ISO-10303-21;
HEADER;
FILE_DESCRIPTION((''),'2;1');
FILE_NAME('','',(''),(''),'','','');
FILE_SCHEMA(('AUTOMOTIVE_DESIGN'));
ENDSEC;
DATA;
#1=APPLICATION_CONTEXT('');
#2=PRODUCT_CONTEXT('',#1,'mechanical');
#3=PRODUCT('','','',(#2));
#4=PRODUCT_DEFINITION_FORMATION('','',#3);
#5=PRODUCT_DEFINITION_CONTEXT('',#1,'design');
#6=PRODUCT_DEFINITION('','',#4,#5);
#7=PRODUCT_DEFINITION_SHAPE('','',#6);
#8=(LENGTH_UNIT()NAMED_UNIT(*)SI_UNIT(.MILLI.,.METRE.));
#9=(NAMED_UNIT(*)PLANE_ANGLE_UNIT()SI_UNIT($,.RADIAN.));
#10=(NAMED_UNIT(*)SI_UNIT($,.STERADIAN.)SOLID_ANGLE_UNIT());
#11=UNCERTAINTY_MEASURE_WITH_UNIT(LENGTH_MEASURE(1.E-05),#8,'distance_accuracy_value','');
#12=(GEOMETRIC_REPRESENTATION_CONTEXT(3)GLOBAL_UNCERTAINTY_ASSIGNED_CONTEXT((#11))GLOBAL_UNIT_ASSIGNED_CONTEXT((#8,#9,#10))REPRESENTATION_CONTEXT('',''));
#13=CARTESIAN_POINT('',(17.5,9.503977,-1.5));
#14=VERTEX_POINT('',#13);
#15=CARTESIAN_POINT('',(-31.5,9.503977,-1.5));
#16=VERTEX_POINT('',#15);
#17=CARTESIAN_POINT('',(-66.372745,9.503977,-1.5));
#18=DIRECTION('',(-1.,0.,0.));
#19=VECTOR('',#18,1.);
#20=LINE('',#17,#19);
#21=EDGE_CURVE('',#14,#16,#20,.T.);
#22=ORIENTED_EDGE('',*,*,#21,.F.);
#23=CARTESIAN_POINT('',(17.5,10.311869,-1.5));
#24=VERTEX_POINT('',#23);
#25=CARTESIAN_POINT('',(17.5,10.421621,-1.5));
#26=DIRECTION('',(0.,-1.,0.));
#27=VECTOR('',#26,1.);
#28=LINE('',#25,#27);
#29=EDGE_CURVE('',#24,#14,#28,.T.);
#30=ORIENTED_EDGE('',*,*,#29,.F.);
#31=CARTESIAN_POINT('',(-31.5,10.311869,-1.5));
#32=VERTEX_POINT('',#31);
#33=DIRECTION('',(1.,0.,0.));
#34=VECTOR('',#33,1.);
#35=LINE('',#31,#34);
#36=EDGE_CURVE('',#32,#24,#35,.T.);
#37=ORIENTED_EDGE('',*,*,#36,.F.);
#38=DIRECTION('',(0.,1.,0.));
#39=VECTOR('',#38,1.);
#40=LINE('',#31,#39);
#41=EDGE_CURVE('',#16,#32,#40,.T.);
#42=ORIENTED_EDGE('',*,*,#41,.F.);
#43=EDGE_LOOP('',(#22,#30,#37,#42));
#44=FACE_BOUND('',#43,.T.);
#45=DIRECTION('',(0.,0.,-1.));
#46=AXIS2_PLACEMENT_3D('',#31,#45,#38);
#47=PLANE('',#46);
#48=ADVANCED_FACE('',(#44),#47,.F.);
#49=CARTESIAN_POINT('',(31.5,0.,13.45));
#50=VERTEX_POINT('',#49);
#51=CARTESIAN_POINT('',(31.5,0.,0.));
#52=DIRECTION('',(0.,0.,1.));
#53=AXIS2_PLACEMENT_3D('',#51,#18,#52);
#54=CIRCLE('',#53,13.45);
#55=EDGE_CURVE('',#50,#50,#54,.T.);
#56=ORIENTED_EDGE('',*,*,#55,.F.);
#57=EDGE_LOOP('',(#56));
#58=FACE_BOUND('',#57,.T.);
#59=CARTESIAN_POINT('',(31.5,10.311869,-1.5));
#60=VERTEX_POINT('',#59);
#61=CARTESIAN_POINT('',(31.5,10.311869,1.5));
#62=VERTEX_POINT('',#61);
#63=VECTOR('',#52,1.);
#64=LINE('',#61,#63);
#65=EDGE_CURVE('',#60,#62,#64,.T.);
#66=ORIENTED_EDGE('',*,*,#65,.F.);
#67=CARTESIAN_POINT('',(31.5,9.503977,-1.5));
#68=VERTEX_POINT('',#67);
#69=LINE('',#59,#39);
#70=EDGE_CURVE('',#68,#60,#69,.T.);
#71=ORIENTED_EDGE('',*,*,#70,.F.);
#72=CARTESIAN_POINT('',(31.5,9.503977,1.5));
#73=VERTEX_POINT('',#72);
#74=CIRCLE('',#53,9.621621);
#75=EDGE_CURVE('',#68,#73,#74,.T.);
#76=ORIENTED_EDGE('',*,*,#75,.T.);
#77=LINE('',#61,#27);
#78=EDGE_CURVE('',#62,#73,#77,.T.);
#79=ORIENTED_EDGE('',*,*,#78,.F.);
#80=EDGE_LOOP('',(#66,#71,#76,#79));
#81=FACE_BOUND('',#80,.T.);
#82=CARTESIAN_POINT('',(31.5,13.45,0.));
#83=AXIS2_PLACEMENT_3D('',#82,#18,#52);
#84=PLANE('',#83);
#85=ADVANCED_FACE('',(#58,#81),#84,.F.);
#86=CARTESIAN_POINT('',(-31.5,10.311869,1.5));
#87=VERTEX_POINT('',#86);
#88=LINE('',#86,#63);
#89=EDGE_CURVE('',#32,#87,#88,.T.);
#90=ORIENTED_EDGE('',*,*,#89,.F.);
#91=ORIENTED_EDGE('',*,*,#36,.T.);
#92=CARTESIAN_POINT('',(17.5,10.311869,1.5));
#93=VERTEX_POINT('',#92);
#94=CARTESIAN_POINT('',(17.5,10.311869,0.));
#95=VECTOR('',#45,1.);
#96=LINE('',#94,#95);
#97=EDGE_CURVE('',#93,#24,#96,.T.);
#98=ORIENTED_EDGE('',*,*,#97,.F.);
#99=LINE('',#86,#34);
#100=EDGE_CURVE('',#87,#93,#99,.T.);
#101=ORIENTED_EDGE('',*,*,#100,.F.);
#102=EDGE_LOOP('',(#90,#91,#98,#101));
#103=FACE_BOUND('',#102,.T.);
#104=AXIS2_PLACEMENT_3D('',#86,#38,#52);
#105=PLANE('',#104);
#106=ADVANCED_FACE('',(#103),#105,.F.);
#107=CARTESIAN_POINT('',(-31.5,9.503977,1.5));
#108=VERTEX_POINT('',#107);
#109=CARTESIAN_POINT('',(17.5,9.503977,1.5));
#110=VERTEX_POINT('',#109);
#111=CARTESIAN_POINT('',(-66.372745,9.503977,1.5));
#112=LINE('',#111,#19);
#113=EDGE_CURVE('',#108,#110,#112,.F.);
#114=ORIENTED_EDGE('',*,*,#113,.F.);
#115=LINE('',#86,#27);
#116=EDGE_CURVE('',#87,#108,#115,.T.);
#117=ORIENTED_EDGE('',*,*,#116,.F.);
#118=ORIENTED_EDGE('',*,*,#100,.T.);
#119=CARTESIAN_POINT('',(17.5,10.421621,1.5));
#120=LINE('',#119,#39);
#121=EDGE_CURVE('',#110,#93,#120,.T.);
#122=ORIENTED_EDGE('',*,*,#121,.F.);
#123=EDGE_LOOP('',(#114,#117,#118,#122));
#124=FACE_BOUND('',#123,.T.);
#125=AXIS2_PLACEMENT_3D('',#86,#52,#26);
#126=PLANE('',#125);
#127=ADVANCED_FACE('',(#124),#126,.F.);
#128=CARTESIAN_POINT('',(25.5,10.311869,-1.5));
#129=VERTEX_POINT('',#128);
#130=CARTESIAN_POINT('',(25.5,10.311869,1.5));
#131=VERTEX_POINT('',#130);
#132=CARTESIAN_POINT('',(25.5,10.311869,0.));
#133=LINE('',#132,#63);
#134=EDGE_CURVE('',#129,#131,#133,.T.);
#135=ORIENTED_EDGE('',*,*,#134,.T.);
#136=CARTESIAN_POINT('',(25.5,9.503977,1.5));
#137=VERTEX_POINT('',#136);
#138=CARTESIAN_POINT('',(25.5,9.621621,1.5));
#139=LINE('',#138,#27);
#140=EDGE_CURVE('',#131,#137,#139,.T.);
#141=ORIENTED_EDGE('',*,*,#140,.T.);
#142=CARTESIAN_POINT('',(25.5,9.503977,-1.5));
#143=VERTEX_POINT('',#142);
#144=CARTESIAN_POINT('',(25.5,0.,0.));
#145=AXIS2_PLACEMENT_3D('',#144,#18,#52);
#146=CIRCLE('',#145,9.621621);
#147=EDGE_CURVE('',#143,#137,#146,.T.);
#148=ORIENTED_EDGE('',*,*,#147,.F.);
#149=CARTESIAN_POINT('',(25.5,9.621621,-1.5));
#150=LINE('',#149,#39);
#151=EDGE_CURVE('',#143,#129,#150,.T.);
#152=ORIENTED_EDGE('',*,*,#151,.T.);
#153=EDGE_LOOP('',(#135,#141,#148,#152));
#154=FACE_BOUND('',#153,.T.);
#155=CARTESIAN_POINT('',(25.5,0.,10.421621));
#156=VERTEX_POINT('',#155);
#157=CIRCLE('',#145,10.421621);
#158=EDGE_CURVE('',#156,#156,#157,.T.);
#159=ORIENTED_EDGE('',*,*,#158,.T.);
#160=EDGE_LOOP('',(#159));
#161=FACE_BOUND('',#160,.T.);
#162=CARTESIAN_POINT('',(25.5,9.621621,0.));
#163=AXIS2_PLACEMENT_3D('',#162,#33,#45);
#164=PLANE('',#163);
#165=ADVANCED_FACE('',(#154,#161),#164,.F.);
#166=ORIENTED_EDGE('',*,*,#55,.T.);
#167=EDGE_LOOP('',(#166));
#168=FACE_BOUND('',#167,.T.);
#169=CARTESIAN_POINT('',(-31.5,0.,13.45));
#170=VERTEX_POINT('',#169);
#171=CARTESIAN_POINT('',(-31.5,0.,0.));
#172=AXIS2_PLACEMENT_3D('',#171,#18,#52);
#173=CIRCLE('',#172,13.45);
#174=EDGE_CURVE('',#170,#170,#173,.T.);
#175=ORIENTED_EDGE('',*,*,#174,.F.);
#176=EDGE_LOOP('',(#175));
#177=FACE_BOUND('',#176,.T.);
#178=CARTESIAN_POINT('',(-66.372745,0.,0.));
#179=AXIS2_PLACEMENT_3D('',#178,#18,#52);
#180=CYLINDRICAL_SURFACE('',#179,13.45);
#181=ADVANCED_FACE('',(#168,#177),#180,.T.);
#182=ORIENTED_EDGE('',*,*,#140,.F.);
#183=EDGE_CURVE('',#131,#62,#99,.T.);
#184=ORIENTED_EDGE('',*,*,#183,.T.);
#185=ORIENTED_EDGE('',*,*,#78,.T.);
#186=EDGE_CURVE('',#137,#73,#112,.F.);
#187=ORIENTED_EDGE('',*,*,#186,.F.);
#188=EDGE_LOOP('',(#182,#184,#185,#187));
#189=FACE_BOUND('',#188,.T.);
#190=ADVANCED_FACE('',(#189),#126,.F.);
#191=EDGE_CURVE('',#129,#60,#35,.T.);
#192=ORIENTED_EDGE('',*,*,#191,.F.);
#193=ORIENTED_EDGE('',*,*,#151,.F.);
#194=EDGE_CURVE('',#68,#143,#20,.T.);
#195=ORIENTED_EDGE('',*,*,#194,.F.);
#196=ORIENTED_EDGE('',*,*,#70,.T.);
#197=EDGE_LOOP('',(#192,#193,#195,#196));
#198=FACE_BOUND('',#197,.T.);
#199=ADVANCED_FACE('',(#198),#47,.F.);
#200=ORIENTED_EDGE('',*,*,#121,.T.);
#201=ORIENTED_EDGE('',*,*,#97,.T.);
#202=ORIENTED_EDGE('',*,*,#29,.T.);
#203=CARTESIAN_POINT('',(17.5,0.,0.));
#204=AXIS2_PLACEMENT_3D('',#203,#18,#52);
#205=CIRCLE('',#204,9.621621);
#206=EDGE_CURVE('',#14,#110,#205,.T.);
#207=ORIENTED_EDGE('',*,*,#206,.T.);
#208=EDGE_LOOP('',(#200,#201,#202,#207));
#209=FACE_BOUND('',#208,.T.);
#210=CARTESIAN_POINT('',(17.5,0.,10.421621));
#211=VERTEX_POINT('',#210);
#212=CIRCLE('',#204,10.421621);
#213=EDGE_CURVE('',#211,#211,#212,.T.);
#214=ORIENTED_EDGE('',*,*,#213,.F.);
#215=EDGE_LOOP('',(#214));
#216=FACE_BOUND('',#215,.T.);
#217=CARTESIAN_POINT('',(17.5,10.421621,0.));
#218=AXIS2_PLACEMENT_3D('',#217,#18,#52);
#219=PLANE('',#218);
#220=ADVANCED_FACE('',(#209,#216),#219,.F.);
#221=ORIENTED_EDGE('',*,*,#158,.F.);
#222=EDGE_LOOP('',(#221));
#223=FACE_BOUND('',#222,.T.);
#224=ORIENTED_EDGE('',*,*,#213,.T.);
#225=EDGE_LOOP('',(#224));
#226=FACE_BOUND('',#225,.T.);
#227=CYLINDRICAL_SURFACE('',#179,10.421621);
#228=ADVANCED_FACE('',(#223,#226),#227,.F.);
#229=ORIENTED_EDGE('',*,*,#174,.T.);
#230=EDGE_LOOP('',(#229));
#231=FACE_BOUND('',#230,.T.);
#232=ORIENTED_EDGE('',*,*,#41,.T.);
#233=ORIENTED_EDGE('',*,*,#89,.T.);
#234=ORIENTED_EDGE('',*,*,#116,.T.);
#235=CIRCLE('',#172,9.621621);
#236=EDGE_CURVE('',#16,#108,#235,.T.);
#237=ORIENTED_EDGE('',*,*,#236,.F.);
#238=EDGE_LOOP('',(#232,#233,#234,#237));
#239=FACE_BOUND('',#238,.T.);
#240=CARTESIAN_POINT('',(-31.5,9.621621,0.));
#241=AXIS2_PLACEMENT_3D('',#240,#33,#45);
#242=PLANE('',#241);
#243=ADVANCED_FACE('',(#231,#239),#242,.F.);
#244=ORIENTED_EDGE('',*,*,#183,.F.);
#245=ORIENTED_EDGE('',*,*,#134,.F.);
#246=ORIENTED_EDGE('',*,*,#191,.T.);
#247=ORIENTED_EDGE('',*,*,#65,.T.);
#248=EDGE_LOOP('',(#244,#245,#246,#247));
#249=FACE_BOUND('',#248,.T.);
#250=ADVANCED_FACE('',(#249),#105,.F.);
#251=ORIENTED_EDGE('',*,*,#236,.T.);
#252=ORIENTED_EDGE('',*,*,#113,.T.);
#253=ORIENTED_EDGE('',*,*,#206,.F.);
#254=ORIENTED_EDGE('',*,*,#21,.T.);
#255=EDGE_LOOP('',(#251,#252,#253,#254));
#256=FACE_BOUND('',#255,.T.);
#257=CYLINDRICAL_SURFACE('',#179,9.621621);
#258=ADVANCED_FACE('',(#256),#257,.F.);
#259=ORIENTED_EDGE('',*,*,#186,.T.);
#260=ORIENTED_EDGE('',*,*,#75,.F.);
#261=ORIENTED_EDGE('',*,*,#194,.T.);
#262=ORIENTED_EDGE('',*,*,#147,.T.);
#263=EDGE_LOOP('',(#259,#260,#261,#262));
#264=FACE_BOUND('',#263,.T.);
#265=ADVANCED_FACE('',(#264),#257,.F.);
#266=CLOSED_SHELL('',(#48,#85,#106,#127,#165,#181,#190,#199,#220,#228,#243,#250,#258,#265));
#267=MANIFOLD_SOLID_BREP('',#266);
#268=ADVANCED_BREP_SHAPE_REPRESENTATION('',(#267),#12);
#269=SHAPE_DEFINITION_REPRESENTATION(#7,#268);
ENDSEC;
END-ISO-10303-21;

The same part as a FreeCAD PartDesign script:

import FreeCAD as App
import Part
import Sketcher


def add_polygon(sketch, points):
    """Adds a closed chain of lines whose ends are joined by coincident constraints."""
    first, n = sketch.GeometryCount, len(points)
    for a, b in zip(points, points[1:] + points[:1]):
        sketch.addGeometry(Part.LineSegment(App.Vector(*a, 0), App.Vector(*b, 0)), False)
    for i in range(n):
        sketch.addConstraint(Sketcher.Constraint("Coincident", first + i, 2, first + (i + 1) % n, 1))

doc = App.newDocument("Part")
body = doc.addObject("PartDesign::Body", "Body")

# Sketch on XY plane
sketch1 = body.newObject("Sketcher::SketchObject", "Sketch")
sketch1.AttachmentSupport = (doc.getObject("XY_Plane"), [""])
sketch1.MapMode = "FlatFace"
add_polygon(sketch1, [(31.5, 13.4), (-31.5, 13.4), (-31.5, 9.6), (17.5, 9.6), (17.5, 10.4), (25.5, 10.4), (25.5, 9.6), (31.5, 9.6)])  # lines 0-7
sketch1.addConstraint([
    Sketcher.Constraint("Horizontal", 0),
    Sketcher.Constraint("Vertical", 1),
    Sketcher.Constraint("Horizontal", 2),
    Sketcher.Constraint("Vertical", 3),
    Sketcher.Constraint("Horizontal", 4),
    Sketcher.Constraint("Vertical", 5),
    Sketcher.Constraint("Horizontal", 6),
    Sketcher.Constraint("Vertical", 7),
    Sketcher.Constraint("Symmetric", 1, 2, 6, 2, -2),
    Sketcher.Constraint("DistanceX", 0, 2, 0, 1, 63.0),
    Sketcher.Constraint("DistanceX", 2, 1, 2, 2, 49.0),
    Sketcher.Constraint("DistanceX", 4, 1, 4, 2, 8.0),
    Sketcher.Constraint("DistanceY", 3, 1, 3, 2, 0.8),
    Sketcher.Constraint("DistanceY", -1, 1, 0, 2, 13.45),
    Sketcher.Constraint("DistanceY", 1, 2, 1, 1, 3.828379),
])
revolution = body.newObject("PartDesign::Revolution", "Revolution")
revolution.Profile = sketch1
revolution.ReferenceAxis = (sketch1, ["H_Axis"])
revolution.Angle = 360

# Sketch on YZ plane
sketch2 = body.newObject("Sketcher::SketchObject", "Sketch001")
sketch2.AttachmentSupport = (doc.getObject("YZ_Plane"), [""])
sketch2.MapMode = "FlatFace"
sketch2.AttachmentOffset = App.Placement(App.Vector(0, 0, 31.5), App.Rotation())
add_polygon(sketch2, [(10.3, 1.5), (8.7, 1.5), (8.7, -1.5), (10.3, -1.5)])  # lines 0-3
sketch2.addConstraint([
    Sketcher.Constraint("Horizontal", 0),
    Sketcher.Constraint("Vertical", 1),
    Sketcher.Constraint("Horizontal", 2),
    Sketcher.Constraint("Vertical", 3),
    Sketcher.Constraint("DistanceY", 1, 2, 1, 1, 3.0),
    Sketcher.Constraint("DistanceX", 0, 2, 0, 1, 1.6),
    Sketcher.Constraint("DistanceY", -1, 1, 0, 2, 1.5),
    Sketcher.Constraint("DistanceX", -1, 1, 0, 2, 8.711869),
])
pocket1 = body.newObject("PartDesign::Pocket", "Pocket")
pocket1.Profile = sketch2
pocket1.Type = "ThroughAll"

doc.recompute()
